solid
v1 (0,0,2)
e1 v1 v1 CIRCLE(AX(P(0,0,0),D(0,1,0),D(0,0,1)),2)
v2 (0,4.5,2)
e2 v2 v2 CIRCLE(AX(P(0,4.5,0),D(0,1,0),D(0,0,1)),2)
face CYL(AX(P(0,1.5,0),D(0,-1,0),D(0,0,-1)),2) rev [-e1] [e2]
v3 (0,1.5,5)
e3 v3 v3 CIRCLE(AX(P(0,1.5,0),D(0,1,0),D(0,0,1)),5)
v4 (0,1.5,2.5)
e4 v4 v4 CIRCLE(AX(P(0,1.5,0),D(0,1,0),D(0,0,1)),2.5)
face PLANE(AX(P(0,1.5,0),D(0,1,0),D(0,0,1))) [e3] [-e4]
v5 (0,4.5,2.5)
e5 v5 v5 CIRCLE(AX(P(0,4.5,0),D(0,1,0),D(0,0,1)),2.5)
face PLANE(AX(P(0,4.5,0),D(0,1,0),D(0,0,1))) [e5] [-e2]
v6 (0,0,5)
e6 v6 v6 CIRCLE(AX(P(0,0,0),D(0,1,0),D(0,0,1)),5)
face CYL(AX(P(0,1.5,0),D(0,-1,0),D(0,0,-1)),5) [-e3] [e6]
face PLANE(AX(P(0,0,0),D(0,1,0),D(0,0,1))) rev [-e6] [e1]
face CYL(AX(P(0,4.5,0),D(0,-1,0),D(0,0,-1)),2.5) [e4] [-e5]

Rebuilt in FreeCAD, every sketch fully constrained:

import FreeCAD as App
import Part
import Sketcher

V = App.Vector
Q = App.Units.Quantity

doc = App.newDocument("Part")
body = doc.addObject("PartDesign::Body", "Body")

sketch1 = body.newObject("Sketcher::SketchObject", "Sketch")
sketch1.AttachmentSupport = (doc.getObject("XZ_Plane"), [""])
sketch1.MapMode = "FlatFace"
sketch1.addGeometry(Part.Circle(V(0, 0, 0), V(0, 0, 1), 5), False)
sketch1.addGeometry(Part.Circle(V(0, 0, 0), V(0, 0, 1), 2), False)
sketch1.addConstraint(Sketcher.Constraint("Coincident", 0, 3, -1, 1))
sketch1.addConstraint(Sketcher.Constraint("Coincident", 1, 3, -1, 1))
sketch1.addConstraint(Sketcher.Constraint("Diameter", 0, Q("10 mm")))
sketch1.addConstraint(Sketcher.Constraint("Diameter", 1, Q("4 mm")))
pad1 = body.newObject("PartDesign::Pad", "Pad")
pad1.Profile = sketch1
pad1.Length = 1.5
pad1.Reversed = True

sketch2 = body.newObject("Sketcher::SketchObject", "Sketch001")
sketch2.AttachmentSupport = (doc.getObject("XZ_Plane"), [""])
sketch2.MapMode = "FlatFace"
sketch2.AttachmentOffset = App.Placement(V(0, 0, -1.5), App.Rotation())
sketch2.addGeometry(Part.Circle(V(0, 0, 0), V(0, 0, 1), 2.5), False)
sketch2.addGeometry(Part.Circle(V(0, 0, 0), V(0, 0, 1), 2), False)
sketch2.addConstraint(Sketcher.Constraint("Coincident", 0, 3, -1, 1))
sketch2.addConstraint(Sketcher.Constraint("Coincident", 1, 3, -1, 1))
sketch2.addConstraint(Sketcher.Constraint("Diameter", 0, Q("5 mm")))
sketch2.addConstraint(Sketcher.Constraint("Diameter", 1, Q("4 mm")))
pad2 = body.newObject("PartDesign::Pad", "Pad001")
pad2.Profile = sketch2
pad2.Length = 3
pad2.Reversed = True

doc.recompute()
